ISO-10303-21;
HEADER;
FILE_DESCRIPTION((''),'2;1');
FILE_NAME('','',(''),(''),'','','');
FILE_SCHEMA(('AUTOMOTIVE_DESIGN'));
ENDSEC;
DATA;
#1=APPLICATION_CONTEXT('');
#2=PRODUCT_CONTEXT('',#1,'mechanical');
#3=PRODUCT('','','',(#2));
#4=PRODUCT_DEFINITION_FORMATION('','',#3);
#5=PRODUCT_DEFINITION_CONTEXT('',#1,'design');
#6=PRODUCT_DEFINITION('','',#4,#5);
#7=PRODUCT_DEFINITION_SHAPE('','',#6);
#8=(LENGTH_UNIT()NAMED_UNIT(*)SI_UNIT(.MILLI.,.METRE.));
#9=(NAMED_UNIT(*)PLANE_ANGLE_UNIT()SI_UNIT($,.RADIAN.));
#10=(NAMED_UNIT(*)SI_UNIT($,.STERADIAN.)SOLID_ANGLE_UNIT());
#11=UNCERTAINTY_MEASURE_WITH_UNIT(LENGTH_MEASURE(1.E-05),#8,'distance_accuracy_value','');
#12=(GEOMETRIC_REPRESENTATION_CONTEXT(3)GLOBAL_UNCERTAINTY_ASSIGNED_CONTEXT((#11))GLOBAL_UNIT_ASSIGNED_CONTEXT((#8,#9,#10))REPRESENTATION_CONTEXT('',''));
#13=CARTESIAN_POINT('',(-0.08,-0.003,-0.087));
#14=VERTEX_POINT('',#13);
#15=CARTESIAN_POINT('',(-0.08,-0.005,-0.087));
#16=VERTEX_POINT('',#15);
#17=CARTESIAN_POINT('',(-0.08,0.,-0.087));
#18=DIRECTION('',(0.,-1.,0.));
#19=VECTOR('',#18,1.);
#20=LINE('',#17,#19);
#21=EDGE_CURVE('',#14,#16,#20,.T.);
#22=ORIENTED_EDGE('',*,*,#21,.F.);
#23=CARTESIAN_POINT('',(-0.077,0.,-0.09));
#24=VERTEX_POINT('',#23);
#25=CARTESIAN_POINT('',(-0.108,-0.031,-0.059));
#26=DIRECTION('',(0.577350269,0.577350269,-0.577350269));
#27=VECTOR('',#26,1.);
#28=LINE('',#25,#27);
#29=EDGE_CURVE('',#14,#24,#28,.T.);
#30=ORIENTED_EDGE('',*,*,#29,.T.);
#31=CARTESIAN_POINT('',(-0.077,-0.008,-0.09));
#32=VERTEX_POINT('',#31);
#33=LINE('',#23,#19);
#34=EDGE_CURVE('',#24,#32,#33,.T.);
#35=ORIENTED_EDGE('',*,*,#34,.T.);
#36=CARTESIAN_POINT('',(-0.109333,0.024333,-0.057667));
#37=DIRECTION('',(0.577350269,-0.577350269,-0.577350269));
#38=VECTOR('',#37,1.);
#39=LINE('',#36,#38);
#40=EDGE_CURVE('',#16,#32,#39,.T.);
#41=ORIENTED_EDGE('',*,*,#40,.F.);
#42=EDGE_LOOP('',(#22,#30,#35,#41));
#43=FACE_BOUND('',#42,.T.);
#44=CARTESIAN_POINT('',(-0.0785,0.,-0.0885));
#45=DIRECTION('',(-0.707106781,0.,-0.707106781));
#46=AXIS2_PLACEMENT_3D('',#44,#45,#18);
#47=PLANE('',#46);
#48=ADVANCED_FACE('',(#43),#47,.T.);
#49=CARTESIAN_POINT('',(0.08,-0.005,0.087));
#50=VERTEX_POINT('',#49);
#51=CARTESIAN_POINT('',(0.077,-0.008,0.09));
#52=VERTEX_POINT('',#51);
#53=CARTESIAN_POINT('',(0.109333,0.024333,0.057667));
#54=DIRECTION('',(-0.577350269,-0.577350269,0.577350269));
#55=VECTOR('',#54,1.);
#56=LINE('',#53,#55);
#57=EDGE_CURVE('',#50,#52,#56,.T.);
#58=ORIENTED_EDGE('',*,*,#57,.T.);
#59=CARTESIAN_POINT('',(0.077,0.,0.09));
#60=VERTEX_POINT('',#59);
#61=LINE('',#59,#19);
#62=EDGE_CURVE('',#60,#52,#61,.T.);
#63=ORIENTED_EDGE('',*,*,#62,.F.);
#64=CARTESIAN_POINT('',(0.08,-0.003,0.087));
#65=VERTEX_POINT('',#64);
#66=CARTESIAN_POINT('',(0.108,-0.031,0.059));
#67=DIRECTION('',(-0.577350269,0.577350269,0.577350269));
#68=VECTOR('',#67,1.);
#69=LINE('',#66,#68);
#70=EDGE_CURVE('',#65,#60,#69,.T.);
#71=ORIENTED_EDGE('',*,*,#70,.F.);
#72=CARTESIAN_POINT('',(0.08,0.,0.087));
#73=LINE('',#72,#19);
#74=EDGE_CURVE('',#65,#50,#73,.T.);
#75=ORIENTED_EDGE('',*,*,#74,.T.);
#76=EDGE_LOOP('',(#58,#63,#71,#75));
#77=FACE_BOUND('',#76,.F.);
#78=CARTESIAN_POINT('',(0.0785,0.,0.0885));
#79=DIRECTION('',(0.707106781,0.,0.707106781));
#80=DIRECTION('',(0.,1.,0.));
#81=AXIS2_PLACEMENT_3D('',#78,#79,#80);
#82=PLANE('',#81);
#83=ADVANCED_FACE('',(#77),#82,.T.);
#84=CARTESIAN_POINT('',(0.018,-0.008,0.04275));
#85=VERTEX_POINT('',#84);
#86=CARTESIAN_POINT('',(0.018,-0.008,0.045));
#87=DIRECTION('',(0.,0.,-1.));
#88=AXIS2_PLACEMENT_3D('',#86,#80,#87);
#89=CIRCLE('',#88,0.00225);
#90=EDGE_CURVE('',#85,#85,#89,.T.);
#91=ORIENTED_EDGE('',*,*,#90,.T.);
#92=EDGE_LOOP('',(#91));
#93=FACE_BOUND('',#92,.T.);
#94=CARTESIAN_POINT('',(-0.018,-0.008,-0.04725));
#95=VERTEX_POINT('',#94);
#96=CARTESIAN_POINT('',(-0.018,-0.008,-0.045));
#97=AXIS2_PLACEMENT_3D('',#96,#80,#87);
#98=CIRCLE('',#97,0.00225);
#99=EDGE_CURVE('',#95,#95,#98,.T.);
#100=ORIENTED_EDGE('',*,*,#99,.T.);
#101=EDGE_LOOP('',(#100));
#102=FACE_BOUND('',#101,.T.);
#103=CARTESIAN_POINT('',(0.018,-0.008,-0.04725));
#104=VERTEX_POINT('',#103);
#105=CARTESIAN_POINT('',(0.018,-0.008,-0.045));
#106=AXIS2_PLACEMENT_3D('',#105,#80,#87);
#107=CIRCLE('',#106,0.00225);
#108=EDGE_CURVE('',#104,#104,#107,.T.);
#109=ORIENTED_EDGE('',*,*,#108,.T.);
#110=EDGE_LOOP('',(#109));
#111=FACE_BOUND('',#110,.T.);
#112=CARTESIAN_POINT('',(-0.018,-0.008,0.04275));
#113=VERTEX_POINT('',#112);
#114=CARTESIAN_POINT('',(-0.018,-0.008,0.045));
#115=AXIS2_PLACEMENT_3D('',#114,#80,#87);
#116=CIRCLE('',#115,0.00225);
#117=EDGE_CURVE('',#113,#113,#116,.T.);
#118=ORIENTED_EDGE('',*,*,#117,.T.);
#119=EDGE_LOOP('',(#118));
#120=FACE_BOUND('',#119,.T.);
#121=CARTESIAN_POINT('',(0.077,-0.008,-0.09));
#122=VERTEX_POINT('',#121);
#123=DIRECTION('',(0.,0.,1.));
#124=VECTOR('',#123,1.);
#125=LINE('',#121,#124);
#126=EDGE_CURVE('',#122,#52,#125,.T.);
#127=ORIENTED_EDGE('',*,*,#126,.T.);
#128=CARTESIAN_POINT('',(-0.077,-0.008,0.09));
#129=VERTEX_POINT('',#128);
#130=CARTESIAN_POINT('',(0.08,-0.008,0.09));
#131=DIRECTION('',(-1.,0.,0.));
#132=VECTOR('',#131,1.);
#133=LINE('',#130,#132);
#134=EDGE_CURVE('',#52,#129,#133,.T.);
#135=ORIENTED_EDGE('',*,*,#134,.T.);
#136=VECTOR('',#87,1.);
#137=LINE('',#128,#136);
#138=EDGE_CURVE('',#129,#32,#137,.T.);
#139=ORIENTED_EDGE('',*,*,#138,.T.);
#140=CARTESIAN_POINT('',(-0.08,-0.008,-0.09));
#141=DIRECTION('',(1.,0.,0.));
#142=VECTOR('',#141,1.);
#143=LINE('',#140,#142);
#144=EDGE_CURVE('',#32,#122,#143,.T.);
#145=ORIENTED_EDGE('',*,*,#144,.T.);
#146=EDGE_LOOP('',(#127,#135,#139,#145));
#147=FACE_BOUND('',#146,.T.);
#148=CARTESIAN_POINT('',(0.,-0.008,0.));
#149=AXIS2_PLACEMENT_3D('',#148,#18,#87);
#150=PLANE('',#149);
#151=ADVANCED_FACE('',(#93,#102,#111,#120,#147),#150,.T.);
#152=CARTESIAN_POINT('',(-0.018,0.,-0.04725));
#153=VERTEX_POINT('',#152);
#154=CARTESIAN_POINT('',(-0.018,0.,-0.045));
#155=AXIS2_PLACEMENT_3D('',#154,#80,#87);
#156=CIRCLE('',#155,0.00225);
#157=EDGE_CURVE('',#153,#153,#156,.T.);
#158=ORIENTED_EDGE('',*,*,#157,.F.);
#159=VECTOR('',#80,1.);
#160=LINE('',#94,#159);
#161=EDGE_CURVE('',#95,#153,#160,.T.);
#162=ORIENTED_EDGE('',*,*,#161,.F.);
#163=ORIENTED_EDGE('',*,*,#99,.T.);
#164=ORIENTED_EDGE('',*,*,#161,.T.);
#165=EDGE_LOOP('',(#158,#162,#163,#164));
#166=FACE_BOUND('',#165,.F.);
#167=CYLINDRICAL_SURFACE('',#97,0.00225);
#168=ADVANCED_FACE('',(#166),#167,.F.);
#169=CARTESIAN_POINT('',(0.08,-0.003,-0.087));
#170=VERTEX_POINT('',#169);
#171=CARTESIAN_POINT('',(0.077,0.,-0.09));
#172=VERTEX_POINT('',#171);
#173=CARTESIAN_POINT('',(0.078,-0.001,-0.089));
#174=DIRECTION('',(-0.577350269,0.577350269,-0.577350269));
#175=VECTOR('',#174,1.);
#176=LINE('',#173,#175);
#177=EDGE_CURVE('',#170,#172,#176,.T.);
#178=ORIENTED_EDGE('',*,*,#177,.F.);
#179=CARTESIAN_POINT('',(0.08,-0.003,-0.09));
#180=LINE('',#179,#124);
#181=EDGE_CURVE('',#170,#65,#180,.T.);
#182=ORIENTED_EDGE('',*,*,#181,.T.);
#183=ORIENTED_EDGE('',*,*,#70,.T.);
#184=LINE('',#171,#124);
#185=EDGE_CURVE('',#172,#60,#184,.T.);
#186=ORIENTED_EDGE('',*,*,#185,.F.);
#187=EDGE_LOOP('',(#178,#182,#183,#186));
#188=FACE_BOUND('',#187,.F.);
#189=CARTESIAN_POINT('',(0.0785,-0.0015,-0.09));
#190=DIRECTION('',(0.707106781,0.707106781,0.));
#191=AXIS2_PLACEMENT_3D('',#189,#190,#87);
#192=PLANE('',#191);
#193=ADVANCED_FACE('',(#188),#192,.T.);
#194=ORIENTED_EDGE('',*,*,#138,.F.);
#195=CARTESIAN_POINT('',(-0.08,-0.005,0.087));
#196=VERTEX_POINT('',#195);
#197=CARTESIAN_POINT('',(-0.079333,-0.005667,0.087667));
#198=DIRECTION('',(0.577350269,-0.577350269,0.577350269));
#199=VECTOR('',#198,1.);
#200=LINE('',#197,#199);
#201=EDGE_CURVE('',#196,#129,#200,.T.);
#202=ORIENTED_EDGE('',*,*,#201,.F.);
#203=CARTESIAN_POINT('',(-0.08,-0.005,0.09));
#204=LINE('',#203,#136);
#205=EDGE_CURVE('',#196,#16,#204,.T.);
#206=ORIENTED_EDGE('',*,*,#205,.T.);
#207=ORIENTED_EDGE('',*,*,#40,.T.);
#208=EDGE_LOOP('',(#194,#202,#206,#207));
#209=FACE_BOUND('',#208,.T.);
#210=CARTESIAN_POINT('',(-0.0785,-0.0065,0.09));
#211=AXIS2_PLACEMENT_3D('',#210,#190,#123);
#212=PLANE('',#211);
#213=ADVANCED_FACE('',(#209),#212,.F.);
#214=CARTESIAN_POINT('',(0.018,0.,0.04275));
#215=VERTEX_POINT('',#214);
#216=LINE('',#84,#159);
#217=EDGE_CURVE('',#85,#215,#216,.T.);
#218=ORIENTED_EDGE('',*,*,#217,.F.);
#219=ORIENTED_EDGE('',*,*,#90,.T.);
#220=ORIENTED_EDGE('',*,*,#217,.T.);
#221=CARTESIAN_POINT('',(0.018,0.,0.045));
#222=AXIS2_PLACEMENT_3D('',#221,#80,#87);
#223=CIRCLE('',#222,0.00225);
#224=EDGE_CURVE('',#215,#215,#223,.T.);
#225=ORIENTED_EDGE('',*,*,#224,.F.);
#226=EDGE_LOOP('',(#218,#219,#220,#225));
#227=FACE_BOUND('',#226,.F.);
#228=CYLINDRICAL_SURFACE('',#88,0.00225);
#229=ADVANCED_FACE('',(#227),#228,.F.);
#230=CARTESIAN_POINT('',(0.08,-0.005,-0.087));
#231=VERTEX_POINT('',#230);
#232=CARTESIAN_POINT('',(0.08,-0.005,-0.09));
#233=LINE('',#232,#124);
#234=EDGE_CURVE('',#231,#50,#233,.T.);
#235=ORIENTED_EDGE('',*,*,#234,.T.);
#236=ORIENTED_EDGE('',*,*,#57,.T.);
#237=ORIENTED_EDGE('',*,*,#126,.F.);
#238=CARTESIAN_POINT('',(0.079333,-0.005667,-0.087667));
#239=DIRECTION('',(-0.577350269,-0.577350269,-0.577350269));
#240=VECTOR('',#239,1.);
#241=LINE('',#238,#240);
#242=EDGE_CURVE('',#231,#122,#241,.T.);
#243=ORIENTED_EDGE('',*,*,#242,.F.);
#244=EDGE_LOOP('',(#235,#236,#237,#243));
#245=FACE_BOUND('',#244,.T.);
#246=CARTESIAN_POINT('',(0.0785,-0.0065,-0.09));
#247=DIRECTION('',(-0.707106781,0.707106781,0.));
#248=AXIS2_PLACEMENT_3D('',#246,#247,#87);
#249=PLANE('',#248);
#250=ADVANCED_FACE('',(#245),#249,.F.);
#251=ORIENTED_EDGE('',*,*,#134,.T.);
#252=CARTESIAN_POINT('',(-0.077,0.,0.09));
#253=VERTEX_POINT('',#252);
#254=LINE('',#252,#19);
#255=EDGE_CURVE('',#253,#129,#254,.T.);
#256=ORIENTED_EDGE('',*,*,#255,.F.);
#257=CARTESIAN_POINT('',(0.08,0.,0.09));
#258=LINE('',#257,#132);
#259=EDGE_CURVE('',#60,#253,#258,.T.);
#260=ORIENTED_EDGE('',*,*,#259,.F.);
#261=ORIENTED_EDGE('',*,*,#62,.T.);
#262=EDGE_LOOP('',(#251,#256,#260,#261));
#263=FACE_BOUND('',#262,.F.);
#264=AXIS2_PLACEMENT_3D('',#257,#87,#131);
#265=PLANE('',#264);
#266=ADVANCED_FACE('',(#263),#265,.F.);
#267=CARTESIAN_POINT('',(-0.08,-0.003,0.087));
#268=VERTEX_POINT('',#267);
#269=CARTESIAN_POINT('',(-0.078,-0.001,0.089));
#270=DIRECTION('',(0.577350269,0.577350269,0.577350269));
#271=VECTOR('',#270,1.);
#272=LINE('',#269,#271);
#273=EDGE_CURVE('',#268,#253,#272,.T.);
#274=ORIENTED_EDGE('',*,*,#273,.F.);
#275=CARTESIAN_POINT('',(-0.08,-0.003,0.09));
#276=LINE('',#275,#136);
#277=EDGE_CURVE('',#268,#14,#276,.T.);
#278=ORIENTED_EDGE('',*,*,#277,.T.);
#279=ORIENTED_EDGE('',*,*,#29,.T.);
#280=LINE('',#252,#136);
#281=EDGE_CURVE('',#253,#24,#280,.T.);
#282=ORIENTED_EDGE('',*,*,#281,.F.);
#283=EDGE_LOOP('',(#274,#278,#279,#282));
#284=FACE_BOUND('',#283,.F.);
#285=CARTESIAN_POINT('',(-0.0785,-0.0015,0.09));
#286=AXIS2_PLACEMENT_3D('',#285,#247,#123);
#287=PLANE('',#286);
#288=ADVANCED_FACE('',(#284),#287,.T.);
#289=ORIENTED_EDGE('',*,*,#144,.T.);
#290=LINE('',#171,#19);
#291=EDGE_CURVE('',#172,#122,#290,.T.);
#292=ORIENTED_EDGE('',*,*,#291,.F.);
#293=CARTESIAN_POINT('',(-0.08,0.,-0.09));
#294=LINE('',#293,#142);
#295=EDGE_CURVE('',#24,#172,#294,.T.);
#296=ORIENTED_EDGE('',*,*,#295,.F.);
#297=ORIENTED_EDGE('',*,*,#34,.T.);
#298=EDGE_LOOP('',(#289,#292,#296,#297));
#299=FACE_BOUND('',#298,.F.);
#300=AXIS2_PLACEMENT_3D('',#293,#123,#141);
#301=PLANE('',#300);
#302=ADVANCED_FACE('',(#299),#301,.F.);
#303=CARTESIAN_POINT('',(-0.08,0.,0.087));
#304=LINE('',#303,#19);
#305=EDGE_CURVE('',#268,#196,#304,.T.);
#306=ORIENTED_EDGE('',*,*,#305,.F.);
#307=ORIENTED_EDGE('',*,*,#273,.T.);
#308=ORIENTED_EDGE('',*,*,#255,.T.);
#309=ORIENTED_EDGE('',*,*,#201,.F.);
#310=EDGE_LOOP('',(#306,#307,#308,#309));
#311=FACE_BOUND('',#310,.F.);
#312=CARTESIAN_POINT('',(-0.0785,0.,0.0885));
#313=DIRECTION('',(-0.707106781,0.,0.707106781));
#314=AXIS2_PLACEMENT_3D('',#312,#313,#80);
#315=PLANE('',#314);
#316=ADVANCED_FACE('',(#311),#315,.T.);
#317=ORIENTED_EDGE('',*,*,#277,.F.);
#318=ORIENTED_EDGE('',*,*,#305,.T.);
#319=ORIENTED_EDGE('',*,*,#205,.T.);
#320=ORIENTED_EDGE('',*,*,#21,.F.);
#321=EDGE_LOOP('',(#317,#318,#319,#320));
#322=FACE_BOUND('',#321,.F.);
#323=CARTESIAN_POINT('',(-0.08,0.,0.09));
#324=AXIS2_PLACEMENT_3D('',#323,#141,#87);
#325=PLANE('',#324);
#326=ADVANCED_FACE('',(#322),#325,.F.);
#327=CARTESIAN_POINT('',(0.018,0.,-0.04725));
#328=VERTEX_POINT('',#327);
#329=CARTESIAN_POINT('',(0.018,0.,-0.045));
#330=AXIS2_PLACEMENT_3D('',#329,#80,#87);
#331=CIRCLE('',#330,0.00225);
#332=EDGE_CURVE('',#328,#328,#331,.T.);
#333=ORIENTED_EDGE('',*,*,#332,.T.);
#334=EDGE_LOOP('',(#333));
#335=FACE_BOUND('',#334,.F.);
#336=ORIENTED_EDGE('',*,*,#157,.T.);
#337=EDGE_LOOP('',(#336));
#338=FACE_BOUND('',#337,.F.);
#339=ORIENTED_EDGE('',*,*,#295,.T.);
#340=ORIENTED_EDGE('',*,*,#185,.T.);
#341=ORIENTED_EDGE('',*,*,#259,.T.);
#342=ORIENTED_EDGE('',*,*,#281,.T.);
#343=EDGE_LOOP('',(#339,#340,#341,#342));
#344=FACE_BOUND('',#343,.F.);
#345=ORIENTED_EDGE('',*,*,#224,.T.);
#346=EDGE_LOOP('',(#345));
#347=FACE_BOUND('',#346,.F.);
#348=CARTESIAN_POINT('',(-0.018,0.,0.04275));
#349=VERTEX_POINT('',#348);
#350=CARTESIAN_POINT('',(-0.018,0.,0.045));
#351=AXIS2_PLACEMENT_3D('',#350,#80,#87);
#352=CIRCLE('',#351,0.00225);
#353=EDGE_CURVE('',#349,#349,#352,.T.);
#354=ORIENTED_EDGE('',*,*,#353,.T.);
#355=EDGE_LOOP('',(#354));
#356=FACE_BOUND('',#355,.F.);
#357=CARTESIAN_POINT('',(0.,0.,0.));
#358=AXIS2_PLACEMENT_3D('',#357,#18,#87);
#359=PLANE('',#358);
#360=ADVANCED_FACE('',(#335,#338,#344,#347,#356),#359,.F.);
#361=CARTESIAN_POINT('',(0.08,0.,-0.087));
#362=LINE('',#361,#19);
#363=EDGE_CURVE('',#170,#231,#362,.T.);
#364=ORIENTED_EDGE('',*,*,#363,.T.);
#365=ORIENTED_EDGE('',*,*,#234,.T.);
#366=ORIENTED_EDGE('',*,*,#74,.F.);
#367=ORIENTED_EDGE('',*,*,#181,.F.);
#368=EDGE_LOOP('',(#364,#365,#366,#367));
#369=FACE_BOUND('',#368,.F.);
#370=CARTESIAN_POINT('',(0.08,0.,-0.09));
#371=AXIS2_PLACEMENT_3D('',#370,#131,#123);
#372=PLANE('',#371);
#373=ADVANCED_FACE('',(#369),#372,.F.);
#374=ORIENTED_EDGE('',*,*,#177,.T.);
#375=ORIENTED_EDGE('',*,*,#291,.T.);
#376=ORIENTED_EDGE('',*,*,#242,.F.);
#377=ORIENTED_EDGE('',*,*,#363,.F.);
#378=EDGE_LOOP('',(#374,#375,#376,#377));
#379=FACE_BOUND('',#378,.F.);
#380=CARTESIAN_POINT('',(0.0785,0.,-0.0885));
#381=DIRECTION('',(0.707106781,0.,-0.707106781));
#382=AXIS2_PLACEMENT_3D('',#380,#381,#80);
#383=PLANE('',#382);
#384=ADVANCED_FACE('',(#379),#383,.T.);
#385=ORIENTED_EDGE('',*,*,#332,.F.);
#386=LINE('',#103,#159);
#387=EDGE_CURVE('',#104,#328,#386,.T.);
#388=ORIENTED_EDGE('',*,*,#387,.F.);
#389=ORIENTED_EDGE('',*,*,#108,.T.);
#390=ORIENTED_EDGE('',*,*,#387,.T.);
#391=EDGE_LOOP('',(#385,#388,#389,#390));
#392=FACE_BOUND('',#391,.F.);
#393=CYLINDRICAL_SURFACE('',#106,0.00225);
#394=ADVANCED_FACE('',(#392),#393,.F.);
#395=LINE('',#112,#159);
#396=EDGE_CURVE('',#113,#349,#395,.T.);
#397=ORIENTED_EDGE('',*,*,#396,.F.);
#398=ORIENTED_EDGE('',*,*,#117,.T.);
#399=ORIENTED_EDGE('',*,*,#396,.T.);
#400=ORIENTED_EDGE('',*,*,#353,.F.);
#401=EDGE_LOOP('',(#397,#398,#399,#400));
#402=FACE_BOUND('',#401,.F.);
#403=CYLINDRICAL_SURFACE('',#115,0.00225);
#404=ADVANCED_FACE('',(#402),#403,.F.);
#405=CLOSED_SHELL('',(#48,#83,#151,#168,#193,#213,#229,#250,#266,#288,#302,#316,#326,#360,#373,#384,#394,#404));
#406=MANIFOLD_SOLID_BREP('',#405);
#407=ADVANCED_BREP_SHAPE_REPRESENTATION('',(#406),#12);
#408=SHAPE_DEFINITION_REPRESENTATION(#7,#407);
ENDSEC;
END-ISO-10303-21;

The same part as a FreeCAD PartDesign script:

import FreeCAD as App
import Part
import Sketcher
from FreeCAD import Vector
Q = App.Units.Quantity


def edges_at(feature, points):
    """Names of the edges that pass closest to the given points."""
    edges = feature.Shape.Edges
    near = lambda p: min(range(len(edges)), key=lambda i: edges[i].distToShape(Part.Vertex(*p))[0])
    return sorted({f"Edge{near(p) + 1}" for p in points})


def add_polygon(sketch, points):
    """Adds a closed chain of lines whose ends are joined by coincident constraints."""
    first, n = sketch.GeometryCount, len(points)
    for a, b in zip(points, points[1:] + points[:1]):
        sketch.addGeometry(Part.LineSegment(App.Vector(*a, 0), App.Vector(*b, 0)), False)
    for i in range(n):
        sketch.addConstraint(Sketcher.Constraint("Coincident", first + i, 2, first + (i + 1) % n, 1))

doc = App.newDocument("Part")
params = doc.addObject("Spreadsheet::Sheet", "Params")
for row, (alias, value) in enumerate([
    ("pad1_length", "0.008 mm"),
    ("chamfer_size", "0.003 mm"),
    ("hole_diameter", "0.0045 mm"),
    ("hole_depth", "0.125 in"),
    ("hole2_diameter", "0.0045 mm"),
    ("hole2_depth", "0.125 in"),
    ("hole3_diameter", "0.0045 mm"),
    ("hole3_depth", "0.125 in"),
    ("hole4_diameter", "0.0045 mm"),
    ("hole4_depth", "0.125 in"),
], start=1):
    params.set(f"A{row}", alias)
    params.set(f"B{row}", "=" + value)
    params.setAlias(f"B{row}", alias)

body = doc.addObject("PartDesign::Body", "Body")

# Sketch on XZ plane
sketch1 = body.newObject("Sketcher::SketchObject", "Sketch")
sketch1.AttachmentSupport = (doc.getObject("XZ_Plane"), [""])
sketch1.MapMode = "FlatFace"
add_polygon(sketch1, [(-0.08, 0.09), (-0.08, -0.09), (0.08, -0.09), (0.08, 0.09)])  # lines 0-3
sketch1.addConstraint([
    Sketcher.Constraint("Vertical", 0),
    Sketcher.Constraint("Horizontal", 1),
    Sketcher.Constraint("Vertical", 2),
    Sketcher.Constraint("Horizontal", 3),
    Sketcher.Constraint("Symmetric", 0, 2, 2, 2, -1, 1),
    Sketcher.Constraint("DistanceX", 0, 2, -1, 1, 0.08),
    Sketcher.Constraint("DistanceY", 0, 2, 0, 1, 0.18),
])
pad1 = body.newObject("PartDesign::Pad", "Pad")
pad1.Profile = sketch1
pad1.setExpression("Length", "Params.pad1_length")
doc.recompute()

chamfer = body.newObject("PartDesign::Chamfer", "Chamfer")
chamfer.Base = (pad1, edges_at(pad1, [
    (0.08, -0.008, 0),
    (0.08, 0, 0),
    (0.08, -0.004, 0.09),
    (0.08, -0.004, -0.09),
    (-0.08, -0.008, 0),
    (-0.08, 0, 0),
    (-0.08, -0.004, 0.09),
    (-0.08, -0.004, -0.09),
]))
chamfer.setExpression("Size", "Params.chamfer_size")

# Sketch on XZ plane
sketch2 = body.newObject("Sketcher::SketchObject", "Sketch001")
sketch2.AttachmentSupport = (doc.getObject("XZ_Plane"), [""])
sketch2.MapMode = "FlatFace"
sketch2.AttachmentOffset = App.Placement(Vector(0, 0, 0.008), App.Rotation())
sketch2.addGeometry(Part.Circle(Vector(0.018, 0.045, 0), Vector(0, 0, 1), 0.0022), False)
sketch2.addConstraint([
    Sketcher.Constraint("Diameter", 0, 0.0045),
    Sketcher.Constraint("DistanceX", -1, 1, 0, 3, Q("0.0007 in")),
    Sketcher.Constraint("DistanceY", -1, 1, 0, 3, 0.045),
])
doc.recompute()
hole = body.newObject("PartDesign::Hole", "Hole")
hole.Profile = sketch2
hole.ThreadType = "None"
hole.setExpression("Diameter", "Params.hole_diameter")
hole.DepthType = "Dimension"
hole.setExpression("Depth", "Params.hole_depth")
hole.DrillPoint = "Flat"

# Sketch on XZ plane
sketch3 = body.newObject("Sketcher::SketchObject", "Sketch002")
sketch3.AttachmentSupport = (doc.getObject("XZ_Plane"), [""])
sketch3.MapMode = "FlatFace"
sketch3.AttachmentOffset = App.Placement(Vector(0, 0, 0.008), App.Rotation())
sketch3.addGeometry(Part.Circle(Vector(0.018, -0.045, 0), Vector(0, 0, 1), 0.0022), False)
sketch3.addConstraint([
    Sketcher.Constraint("Diameter", 0, 0.0045),
    Sketcher.Constraint("DistanceX", -1, 1, 0, 3, Q("0.0007 in")),
    Sketcher.Constraint("DistanceY", 0, 3, -1, 1, 0.045),
])
doc.recompute()
hole2 = body.newObject("PartDesign::Hole", "Hole001")
hole2.Profile = sketch3
hole2.ThreadType = "None"
hole2.setExpression("Diameter", "Params.hole2_diameter")
hole2.DepthType = "Dimension"
hole2.setExpression("Depth", "Params.hole2_depth")
hole2.DrillPoint = "Flat"

# Sketch on XZ plane
sketch4 = body.newObject("Sketcher::SketchObject", "Sketch003")
sketch4.AttachmentSupport = (doc.getObject("XZ_Plane"), [""])
sketch4.MapMode = "FlatFace"
sketch4.AttachmentOffset = App.Placement(Vector(0, 0, 0.008), App.Rotation())
sketch4.addGeometry(Part.Circle(Vector(-0.018, -0.045, 0), Vector(0, 0, 1), 0.0022), False)
sketch4.addConstraint([
    Sketcher.Constraint("Diameter", 0, 0.0045),
    Sketcher.Constraint("DistanceX", 0, 3, -1, 1, Q("0.0007 in")),
    Sketcher.Constraint("DistanceY", 0, 3, -1, 1, 0.045),
])
doc.recompute()
hole3 = body.newObject("PartDesign::Hole", "Hole002")
hole3.Profile = sketch4
hole3.ThreadType = "None"
hole3.setExpression("Diameter", "Params.hole3_diameter")
hole3.DepthType = "Dimension"
hole3.setExpression("Depth", "Params.hole3_depth")
hole3.DrillPoint = "Flat"

# Sketch on XZ plane
sketch5 = body.newObject("Sketcher::SketchObject", "Sketch004")
sketch5.AttachmentSupport = (doc.getObject("XZ_Plane"), [""])
sketch5.MapMode = "FlatFace"
sketch5.AttachmentOffset = App.Placement(Vector(0, 0, 0.008), App.Rotation())
sketch5.addGeometry(Part.Circle(Vector(-0.018, 0.045, 0), Vector(0, 0, 1), 0.0022), False)
sketch5.addConstraint([
    Sketcher.Constraint("Diameter", 0, 0.0045),
    Sketcher.Constraint("DistanceX", 0, 3, -1, 1, Q("0.0007 in")),
    Sketcher.Constraint("DistanceY", -1, 1, 0, 3, 0.045),
])
doc.recompute()
hole4 = body.newObject("PartDesign::Hole", "Hole003")
hole4.Profile = sketch5
hole4.ThreadType = "None"
hole4.setExpression("Diameter", "Params.hole4_diameter")
hole4.DepthType = "Dimension"
hole4.setExpression("Depth", "Params.hole4_depth")
hole4.DrillPoint = "Flat"

doc.recompute()
